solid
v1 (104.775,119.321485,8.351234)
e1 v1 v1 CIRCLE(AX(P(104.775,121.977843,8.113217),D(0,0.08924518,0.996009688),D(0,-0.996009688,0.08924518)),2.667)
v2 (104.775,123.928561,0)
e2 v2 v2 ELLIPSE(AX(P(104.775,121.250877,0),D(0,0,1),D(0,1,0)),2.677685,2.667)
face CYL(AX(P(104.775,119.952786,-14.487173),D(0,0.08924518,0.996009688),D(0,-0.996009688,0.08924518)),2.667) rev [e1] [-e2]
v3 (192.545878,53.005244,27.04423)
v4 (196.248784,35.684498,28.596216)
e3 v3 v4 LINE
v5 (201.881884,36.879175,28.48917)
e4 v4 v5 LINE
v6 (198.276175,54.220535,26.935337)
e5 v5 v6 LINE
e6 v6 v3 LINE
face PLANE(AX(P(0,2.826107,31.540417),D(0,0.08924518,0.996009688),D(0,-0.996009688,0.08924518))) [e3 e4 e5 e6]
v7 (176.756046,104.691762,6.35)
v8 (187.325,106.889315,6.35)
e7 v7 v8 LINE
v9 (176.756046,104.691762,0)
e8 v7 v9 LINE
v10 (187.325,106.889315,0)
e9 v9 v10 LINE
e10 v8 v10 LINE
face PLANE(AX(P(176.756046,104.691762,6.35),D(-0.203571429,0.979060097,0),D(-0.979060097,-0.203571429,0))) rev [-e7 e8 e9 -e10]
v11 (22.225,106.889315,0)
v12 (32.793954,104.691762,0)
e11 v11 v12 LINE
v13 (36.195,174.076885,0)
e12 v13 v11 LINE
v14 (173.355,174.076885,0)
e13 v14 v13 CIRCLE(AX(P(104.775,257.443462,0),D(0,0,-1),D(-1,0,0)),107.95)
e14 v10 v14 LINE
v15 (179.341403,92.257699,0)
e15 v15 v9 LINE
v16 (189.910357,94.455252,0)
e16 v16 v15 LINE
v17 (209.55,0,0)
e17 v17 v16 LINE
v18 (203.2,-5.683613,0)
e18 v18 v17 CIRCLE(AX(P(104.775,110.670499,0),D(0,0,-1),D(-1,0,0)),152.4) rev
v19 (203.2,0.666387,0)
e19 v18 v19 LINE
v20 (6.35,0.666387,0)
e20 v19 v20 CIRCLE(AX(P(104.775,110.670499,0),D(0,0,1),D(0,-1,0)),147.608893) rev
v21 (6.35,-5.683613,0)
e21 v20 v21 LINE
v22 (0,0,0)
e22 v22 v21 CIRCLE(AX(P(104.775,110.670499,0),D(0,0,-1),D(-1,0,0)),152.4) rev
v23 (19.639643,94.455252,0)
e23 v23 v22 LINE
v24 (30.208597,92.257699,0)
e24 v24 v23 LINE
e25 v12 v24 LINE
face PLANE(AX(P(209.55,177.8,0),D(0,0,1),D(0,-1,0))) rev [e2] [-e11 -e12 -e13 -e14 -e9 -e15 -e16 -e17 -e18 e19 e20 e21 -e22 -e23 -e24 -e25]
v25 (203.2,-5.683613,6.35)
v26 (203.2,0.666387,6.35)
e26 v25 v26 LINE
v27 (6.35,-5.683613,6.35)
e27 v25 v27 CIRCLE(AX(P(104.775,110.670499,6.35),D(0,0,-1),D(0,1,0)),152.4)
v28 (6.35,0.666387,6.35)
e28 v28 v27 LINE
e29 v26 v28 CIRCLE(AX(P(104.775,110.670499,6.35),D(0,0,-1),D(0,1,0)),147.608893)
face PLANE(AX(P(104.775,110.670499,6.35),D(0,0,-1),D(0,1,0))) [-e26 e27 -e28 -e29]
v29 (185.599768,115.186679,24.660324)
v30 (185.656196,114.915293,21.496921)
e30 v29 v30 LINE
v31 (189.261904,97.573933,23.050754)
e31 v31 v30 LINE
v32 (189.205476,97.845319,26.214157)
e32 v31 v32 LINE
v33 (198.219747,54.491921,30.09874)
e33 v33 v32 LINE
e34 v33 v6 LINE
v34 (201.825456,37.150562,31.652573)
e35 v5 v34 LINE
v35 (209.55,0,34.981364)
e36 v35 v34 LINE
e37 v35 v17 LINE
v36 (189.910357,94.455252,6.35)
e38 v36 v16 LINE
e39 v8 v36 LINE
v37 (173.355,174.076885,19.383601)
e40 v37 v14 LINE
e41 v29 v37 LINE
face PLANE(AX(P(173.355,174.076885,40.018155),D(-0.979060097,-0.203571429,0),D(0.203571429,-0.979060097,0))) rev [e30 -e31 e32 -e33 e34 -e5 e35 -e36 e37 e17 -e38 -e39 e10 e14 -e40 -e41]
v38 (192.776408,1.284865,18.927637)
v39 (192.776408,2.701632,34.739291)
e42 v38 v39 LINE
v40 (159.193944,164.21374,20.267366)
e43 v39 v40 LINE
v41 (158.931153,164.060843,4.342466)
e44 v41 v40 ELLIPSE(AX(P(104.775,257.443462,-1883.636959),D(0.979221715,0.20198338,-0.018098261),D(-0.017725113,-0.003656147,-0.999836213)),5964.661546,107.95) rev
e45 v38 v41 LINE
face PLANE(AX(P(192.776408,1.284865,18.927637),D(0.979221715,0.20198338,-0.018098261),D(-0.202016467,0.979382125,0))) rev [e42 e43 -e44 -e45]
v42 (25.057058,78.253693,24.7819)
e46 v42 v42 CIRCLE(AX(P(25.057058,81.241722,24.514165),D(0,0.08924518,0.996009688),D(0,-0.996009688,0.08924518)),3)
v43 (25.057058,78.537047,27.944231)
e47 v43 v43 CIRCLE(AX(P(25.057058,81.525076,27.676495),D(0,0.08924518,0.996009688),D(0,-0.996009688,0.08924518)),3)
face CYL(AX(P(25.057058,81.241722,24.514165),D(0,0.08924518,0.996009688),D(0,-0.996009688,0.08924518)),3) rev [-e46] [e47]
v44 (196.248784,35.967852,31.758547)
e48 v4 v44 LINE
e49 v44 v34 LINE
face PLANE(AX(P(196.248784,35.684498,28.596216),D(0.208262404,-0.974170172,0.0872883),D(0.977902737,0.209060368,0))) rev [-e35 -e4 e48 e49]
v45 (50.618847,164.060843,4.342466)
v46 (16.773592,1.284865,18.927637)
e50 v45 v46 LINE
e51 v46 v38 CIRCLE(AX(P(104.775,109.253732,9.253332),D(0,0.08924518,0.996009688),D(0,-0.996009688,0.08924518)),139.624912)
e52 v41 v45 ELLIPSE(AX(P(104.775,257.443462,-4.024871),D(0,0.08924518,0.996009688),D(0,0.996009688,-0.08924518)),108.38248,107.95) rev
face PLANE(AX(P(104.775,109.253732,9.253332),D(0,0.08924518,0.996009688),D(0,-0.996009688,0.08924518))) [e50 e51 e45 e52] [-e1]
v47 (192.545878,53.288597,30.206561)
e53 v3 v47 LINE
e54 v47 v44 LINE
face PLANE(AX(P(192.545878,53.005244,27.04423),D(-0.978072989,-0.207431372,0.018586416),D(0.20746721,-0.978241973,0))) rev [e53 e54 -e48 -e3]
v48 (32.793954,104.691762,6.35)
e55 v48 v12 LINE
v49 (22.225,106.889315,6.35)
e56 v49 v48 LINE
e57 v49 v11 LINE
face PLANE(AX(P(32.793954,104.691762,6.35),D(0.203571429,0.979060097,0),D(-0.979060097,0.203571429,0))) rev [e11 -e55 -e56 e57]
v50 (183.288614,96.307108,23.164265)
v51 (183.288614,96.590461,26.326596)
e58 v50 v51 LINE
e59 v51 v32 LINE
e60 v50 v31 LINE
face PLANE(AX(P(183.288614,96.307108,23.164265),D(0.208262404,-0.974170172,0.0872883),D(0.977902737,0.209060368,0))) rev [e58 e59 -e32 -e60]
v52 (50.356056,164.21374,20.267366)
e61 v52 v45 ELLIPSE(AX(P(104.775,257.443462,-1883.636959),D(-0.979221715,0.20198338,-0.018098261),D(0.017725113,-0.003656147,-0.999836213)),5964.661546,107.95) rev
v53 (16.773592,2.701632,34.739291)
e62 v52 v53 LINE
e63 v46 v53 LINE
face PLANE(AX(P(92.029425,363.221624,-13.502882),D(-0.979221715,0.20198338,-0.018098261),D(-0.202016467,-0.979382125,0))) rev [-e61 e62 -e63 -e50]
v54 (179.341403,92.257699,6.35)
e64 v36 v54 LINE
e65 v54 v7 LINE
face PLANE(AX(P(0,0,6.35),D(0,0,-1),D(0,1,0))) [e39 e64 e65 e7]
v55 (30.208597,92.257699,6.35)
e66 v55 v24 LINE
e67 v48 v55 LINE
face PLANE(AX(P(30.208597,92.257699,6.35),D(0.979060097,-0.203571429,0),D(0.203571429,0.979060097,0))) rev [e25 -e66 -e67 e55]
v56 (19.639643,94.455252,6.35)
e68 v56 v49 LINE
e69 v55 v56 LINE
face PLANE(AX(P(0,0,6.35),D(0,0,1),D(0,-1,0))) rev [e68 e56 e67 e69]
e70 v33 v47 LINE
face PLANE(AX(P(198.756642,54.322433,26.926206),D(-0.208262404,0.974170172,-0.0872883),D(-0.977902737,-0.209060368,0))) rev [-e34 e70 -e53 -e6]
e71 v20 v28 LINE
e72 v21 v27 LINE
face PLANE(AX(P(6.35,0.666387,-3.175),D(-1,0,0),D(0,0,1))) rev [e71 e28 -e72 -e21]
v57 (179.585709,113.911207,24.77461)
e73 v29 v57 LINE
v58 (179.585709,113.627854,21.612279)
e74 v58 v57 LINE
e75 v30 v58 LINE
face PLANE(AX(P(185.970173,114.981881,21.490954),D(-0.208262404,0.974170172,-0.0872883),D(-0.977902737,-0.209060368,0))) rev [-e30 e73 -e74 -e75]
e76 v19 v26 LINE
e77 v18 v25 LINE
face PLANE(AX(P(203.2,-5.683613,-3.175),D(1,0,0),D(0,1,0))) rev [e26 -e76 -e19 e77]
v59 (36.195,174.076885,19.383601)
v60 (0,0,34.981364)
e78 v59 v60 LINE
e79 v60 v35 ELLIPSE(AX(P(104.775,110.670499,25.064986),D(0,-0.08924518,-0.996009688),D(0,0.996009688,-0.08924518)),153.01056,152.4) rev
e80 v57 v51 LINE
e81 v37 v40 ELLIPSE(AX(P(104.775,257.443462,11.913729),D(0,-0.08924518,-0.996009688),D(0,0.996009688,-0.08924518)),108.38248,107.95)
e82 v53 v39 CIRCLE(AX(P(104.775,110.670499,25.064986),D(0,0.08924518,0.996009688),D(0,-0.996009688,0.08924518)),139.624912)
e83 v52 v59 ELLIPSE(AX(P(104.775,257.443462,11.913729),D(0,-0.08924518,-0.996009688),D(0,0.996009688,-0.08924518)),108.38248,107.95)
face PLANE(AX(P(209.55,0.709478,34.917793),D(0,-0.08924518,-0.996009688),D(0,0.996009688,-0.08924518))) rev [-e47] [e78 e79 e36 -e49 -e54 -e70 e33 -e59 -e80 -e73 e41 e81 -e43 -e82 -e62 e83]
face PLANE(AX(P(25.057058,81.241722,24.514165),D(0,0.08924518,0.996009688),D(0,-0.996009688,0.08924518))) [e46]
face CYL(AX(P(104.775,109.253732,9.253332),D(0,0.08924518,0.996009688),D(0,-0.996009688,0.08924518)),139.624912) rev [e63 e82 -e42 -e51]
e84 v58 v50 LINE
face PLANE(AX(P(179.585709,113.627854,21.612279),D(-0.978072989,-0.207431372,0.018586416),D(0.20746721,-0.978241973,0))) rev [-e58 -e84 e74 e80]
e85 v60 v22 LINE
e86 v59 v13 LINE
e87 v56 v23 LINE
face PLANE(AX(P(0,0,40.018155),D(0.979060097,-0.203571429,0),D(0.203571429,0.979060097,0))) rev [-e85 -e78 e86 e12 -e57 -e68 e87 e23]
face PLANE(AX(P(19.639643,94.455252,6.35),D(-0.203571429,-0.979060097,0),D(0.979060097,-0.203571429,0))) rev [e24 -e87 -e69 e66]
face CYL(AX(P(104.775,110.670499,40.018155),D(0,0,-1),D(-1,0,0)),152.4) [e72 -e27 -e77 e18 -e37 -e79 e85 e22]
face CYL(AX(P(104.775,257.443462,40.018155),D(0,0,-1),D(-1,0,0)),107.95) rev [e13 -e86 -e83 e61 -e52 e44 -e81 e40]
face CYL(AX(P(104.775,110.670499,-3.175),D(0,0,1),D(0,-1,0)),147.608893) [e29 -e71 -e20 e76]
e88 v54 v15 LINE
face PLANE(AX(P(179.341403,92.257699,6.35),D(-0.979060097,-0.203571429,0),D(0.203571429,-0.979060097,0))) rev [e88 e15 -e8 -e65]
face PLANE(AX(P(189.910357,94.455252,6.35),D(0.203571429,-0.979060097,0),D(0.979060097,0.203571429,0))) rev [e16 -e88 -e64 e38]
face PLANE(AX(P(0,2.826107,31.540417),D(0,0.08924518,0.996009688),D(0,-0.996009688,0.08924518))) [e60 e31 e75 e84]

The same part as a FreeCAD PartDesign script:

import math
import FreeCAD as App
import Part
import Sketcher

V = App.Vector
Q = App.Units.Quantity


def add_polygon(sketch, points):
    """Adds a closed chain of lines whose ends are joined by coincident constraints."""
    first, n = sketch.GeometryCount, len(points)
    for a, b in zip(points, points[1:] + points[:1]):
        sketch.addGeometry(Part.LineSegment(App.Vector(*a, 0), App.Vector(*b, 0)), False)
    for i in range(n):
        sketch.addConstraint(Sketcher.Constraint("Coincident", first + i, 2, first + (i + 1) % n, 1))

doc = App.newDocument("Part")
body = doc.addObject("PartDesign::Body", "Body")

sketch1 = doc.addObject("Sketcher::SketchObject", "Sketch")
body.addObject(sketch1)
sketch1.AttachmentSupport = (doc.YZ_Plane, [""])
sketch1.MapMode = "FlatFace"
add_polygon(sketch1, [(177.8, 19.05), (0.709478, 34.917793), (-56.212476, 40.018155), (-53.790493, 0), (177.8, 0)])
sketch1.addConstraint([
    Sketcher.Constraint("Horizontal", 3),
    Sketcher.Constraint("Vertical", 4),
    Sketcher.Constraint("PointOnObject", 2, 2, -1),
    Sketcher.Constraint("Parallel", 0, 1),
    Sketcher.Constraint("Distance", 0, Q("7 in")),
    Sketcher.Constraint("DistanceX", -1, 1, 3, 2, Q("7 in")),
    Sketcher.Constraint("DistanceY", 4, 1, 4, 2, Q("0.75 in")),
    Sketcher.Constraint("Distance", 1, Q("2.25 in")),
    Sketcher.Constraint("Distance", 2, Q("40.09138 mm")),
    Sketcher.Constraint("DistanceX", 3, 1, 3, 2, Q("231.590493 mm")),
])
pad1 = doc.addObject("PartDesign::Pad", "Pad")
body.addObject(pad1)
pad1.Profile = sketch1
pad1.Length = Q("8.25 in")

sketch2 = doc.addObject("Sketcher::SketchObject", "Sketch001")
body.addObject(sketch2)
sketch2.AttachmentSupport = (doc.XY_Plane, [""])
sketch2.MapMode = "FlatFace"
add_polygon(sketch2, [(-12.843343, 191.672345), (-12.843343, -74.155093), (227.667197, -74.155093), (227.667197, 191.672345)])
sketch2.addGeometry(Part.ArcOfCircle(Part.Circle(V(104.775, 110.670499, 0), V(0, 0, 1), 152.4), math.radians(-133.432537), math.radians(-46.567463)), False)
sketch2.addGeometry(Part.LineSegment(V(0, 0, 0), V(36.195, 174.076885, 0)), False)
sketch2.addGeometry(Part.ArcOfCircle(Part.Circle(V(104.775, 257.443462, 0), V(0, 0, 1), 107.95), math.radians(-129.441802), math.radians(-50.558198)), False)
sketch2.addGeometry(Part.LineSegment(V(173.355, 174.076885, 0), V(209.55, 0, 0)), False)
sketch2.addConstraint([
    Sketcher.Constraint("Coincident", 4, 1, 5, 1),
    Sketcher.Constraint("Coincident", 5, 2, 6, 1),
    Sketcher.Constraint("Coincident", 6, 2, 7, 1),
    Sketcher.Constraint("Coincident", 7, 2, 4, 2),
    Sketcher.Constraint("Vertical", 0),
    Sketcher.Constraint("Horizontal", 1),
    Sketcher.Constraint("Vertical", 2),
    Sketcher.Constraint("Horizontal", 3),
    Sketcher.Constraint("Coincident", 4, 1, -1, 1),
    Sketcher.Constraint("PointOnObject", 7, 2, -1),
    Sketcher.Constraint("Horizontal", 5, 2, 6, 2),
    Sketcher.Constraint("Vertical", 4, 3, 6, 3),
    Sketcher.Constraint("Radius", 4, Q("6 in")),
    Sketcher.Constraint("Radius", 6, Q("4.25 in")),
    Sketcher.Constraint("Distance", 5, Q("7 in")),
    Sketcher.Constraint("DistanceX", 5, 2, 4, 3, Q("2.7 in")),
    Sketcher.Constraint("DistanceX", -1, 1, 7, 2, Q("8.25 in")),
    Sketcher.Constraint("DistanceX", 1, 1, 1, 2, Q("240.510539 mm")),
    Sketcher.Constraint("DistanceY", 0, 2, 0, 1, Q("265.827438 mm")),
    Sketcher.Constraint("DistanceY", 5, 2, 3, 2, Q("17.59546 mm")),
    Sketcher.Constraint("DistanceX", 0, 2, -1, 1, Q("12.843343 mm")),
])
pocket1 = doc.addObject("PartDesign::Pocket", "Pocket")
body.addObject(pocket1)
pocket1.Profile = sketch2
pocket1.Type = "ThroughAll"
pocket1.Midplane = True

sketch3 = doc.addObject("Sketcher::SketchObject", "Sketch002")
body.addObject(sketch3)
sketch3.Placement = App.Placement(V(0, 3.474785, 34.670014), App.Rotation(V(1, 0, 0), V(0, 0.996009688, -0.08924518), V(0, 0.08924518, 0.996009688), "ZXY"))
sketch3.addGeometry([
    Part.LineSegment(V(92.029425, 362.610535, 0), V(16.773592, -0.77625, 0)),
    Part.ArcOfCircle(Part.Circle(V(104.775, 107.625172, 0), V(0, 0, 1), 139.624912), math.radians(-129.070053), math.radians(-50.929947)),
    Part.LineSegment(V(192.776408, -0.77625, 0), V(117.520575, 362.610535, 0)),
    Part.LineSegment(V(117.520575, 362.610535, 0), V(92.029425, 362.610535, 0)),
], False)
sketch3.addConstraint([
    Sketcher.Constraint("Coincident", 0, 2, 1, 1),
    Sketcher.Constraint("Coincident", 1, 2, 2, 1),
    Sketcher.Constraint("Coincident", 2, 2, 3, 1),
    Sketcher.Constraint("Coincident", 3, 2, 0, 1),
    Sketcher.Constraint("Horizontal", 3),
    Sketcher.Constraint("Horizontal", 0, 2, 1, 2),
    Sketcher.Constraint("Equal", 0, 2),
    Sketcher.Constraint("DistanceX", -1, 1, 1, 3, Q("4.125 in")),
    Sketcher.Constraint("Radius", 1, Q("139.624912 mm")),
    Sketcher.Constraint("DistanceX", 3, 2, 3, 1, Q("25.491149 mm")),
    Sketcher.Constraint("DistanceY", 0, 2, -1, 1, Q("0.77625 mm")),
    Sketcher.Constraint("Distance", 0, Q("371.097557 mm")),
    Sketcher.Constraint("DistanceY", -1, 1, 1, 3, Q("107.625172 mm")),
])
pocket2 = doc.addObject("PartDesign::Pocket", "Pocket001")
body.addObject(pocket2)
pocket2.Profile = sketch3
pocket2.Length = Q("0.625 in")

sketch4 = doc.addObject("Sketcher::SketchObject", "Sketch003")
body.addObject(sketch4)
sketch4.Placement = App.Placement(V(0, 3.109461, 34.702748), App.Rotation(V(1, 0, 0), V(0, 0.996009688, -0.08924518), V(0, 0.08924518, 0.996009688), "ZXY"))
add_polygon(sketch4, [(185.970173, 112.605104), (179.585709, 111.245651), (183.288614, 93.855513), (189.673078, 95.214966)])
add_polygon(sketch4, [(198.756642, 51.702635), (192.545878, 50.380169), (196.248784, 32.990031), (202.459547, 34.312498)])
sketch4.addConstraint([
    Sketcher.Constraint("Perpendicular", 0, 1),
    Sketcher.Constraint("Perpendicular", 1, 2),
    Sketcher.Constraint("Perpendicular", 2, 3),
    Sketcher.Constraint("Perpendicular", 3, 4),
    Sketcher.Constraint("Perpendicular", 4, 5),
    Sketcher.Constraint("Perpendicular", 5, 6),
    Sketcher.Constraint("Perpendicular", 6, 7),
    Sketcher.Constraint("Equal", 3, 5),
    Sketcher.Constraint("Distance", 1, Q("0.7 in")),
    Sketcher.Constraint("Distance", 4, Q("0.25 in")),
    Sketcher.Constraint("DistanceX", 2, 2, 4, 2, Q("2.8728 mm")),
    Sketcher.Constraint("DistanceX", -1, 1, 0, 2, Q("179.585709 mm")),
    Sketcher.Constraint("DistanceY", -1, 1, 0, 2, Q("111.245651 mm")),
    Sketcher.Constraint("DistanceX", -1, 1, 2, 2, Q("189.673078 mm")),
    Sketcher.Constraint("DistanceY", -1, 1, 4, 2, Q("50.380169 mm")),
    Sketcher.Constraint("DistanceY", -1, 1, 5, 2, Q("32.990031 mm")),
])
pocket3 = doc.addObject("PartDesign::Pocket", "Pocket002")
body.addObject(pocket3)
pocket3.Profile = sketch4
pocket3.Length = Q("0.125 in")

sketch5 = doc.addObject("Sketcher::SketchObject", "Sketch004")
body.addObject(sketch5)
sketch5.Placement = App.Placement(V(0, 3.109461, 34.702748), App.Rotation(V(1, 0, 0), V(0, 0.996009688, -0.08924518), V(0, 0.08924518, 0.996009688), "ZXY"))
sketch5.addGeometry(Part.Circle(V(25.057058, 78.729772, 0), V(0, 0, 1), 3), False)
sketch5.addConstraint([
    Sketcher.Constraint("Diameter", 0, Q("6 mm")),
    Sketcher.Constraint("DistanceX", -1, 1, 0, 3, Q("25.057058 mm")),
    Sketcher.Constraint("DistanceY", -1, 1, 0, 3, Q("78.729772 mm")),
])
pocket4 = doc.addObject("PartDesign::Pocket", "Pocket003")
body.addObject(pocket4)
pocket4.Profile = sketch5
pocket4.Length = Q("0.125 in")

sketch6 = doc.addObject("Sketcher::SketchObject", "Sketch005")
body.addObject(sketch6)
sketch6.AttachmentSupport = (doc.XY_Plane, [""])
sketch6.MapMode = "FlatFace"
sketch6.addGeometry([
    Part.LineSegment(V(203.2, 0.666387, 0), V(203.2, -5.683613, 0)),
    Part.ArcOfCircle(Part.Circle(V(104.775, 48.291387, 0), V(0, 0, 1), 112.253202), math.radians(-151.260205), math.radians(-28.739795)),
    Part.LineSegment(V(6.35, -5.683613, 0), V(6.35, 0.666387, 0)),
    Part.ArcOfCircle(Part.Circle(V(104.775, 110.670499, 0), V(0, 0, 1), 147.608893), math.radians(-131.820247), math.radians(-48.179753)),
], False)
sketch6.addConstraint([
    Sketcher.Constraint("Coincident", 0, 2, 1, 2),
    Sketcher.Constraint("Coincident", 1, 1, 2, 1),
    Sketcher.Constraint("Coincident", 2, 2, 3, 1),
    Sketcher.Constraint("Coincident", 3, 2, 0, 1),
    Sketcher.Constraint("Vertical", 0),
    Sketcher.Constraint("Vertical", 2),
    Sketcher.Constraint("Horizontal", 0, 2, 1, 1),
    Sketcher.Constraint("Horizontal", 2, 2, 3, 2),
    Sketcher.Constraint("DistanceX", -1, 1, 0, 2, Q("8 in")),
    Sketcher.Constraint("DistanceY", 0, 2, 0, 1, Q("0.25 in")),
    Sketcher.Constraint("DistanceX", -1, 1, 1, 1, Q("0.25 in")),
    Sketcher.Constraint("Radius", 1, Q("112.253202 mm")),
    Sketcher.Constraint("Radius", 3, Q("147.608893 mm")),
    Sketcher.Constraint("DistanceY", -1, 1, 3, 3, Q("110.670499 mm")),
])
pocket5 = doc.addObject("PartDesign::Pocket", "Pocket004")
body.addObject(pocket5)
pocket5.Profile = sketch6
pocket5.Type = "TwoLengths"
pocket5.Length = Q("0.125 in")
pocket5.Length2 = Q("0.25 in")

sketch7 = doc.addObject("Sketcher::SketchObject", "Sketch006")
body.addObject(sketch7)
sketch7.Placement = App.Placement(V(0, 1.692693, 18.891094), App.Rotation(V(1, 0, 0), V(0, 0.996009688, -0.08924518), V(0, 0.08924518, 0.996009688), "ZXY"))
sketch7.addGeometry(Part.Circle(V(104.775, 120.767048, 0), V(0, 0, 1), 2.667), False)
sketch7.addConstraint([
    Sketcher.Constraint("Diameter", 0, Q("0.21 in")),
    Sketcher.Constraint("DistanceX", -1, 1, 0, 3, Q("4.125 in")),
    Sketcher.Constraint("DistanceY", -1, 1, 0, 3, Q("120.767048 mm")),
])
pocket6 = doc.addObject("PartDesign::Pocket", "Pocket005")
body.addObject(pocket6)
pocket6.Profile = sketch7
pocket6.Type = "ThroughAll"

sketch8 = doc.addObject("Sketcher::SketchObject", "Sketch007")
body.addObject(sketch8)
sketch8.AttachmentSupport = (doc.XY_Plane, [""])
sketch8.MapMode = "FlatFace"
add_polygon(sketch8, [(187.325, 106.889315), (189.910357, 94.455252), (179.341403, 92.257699), (176.756046, 104.691762)])
add_polygon(sketch8, [(22.225, 106.889315), (32.793954, 104.691762), (30.208597, 92.257699), (19.639643, 94.455252)])
sketch8.addConstraint([
    Sketcher.Constraint("Perpendicular", 0, 1),
    Sketcher.Constraint("Perpendicular", 1, 2),
    Sketcher.Constraint("Perpendicular", 2, 3),
    Sketcher.Constraint("Perpendicular", 4, 5),
    Sketcher.Constraint("Perpendicular", 5, 6),
    Sketcher.Constraint("Perpendicular", 6, 7),
    Sketcher.Constraint("Horizontal", 2, 2, 4, 2),
    Sketcher.Constraint("Horizontal", 1, 2, 5, 2),
    Sketcher.Constraint("Horizontal", 0, 2, 6, 2),
    Sketcher.Constraint("Equal", 3, 4),
    Sketcher.Constraint("Distance", 0, Q("0.5 in")),
    Sketcher.Constraint("Distance", 1, Q("0.425 in")),
    Sketcher.Constraint("DistanceX", -1, 1, 3, 2, Q("7.375 in")),
    Sketcher.Constraint("DistanceX", -1, 1, 7, 2, Q("0.875 in")),
    Sketcher.Constraint("DistanceY", -1, 1, 1, 2, Q("92.257699 mm")),
    Sketcher.Constraint("DistanceY", -1, 1, 2, 2, Q("104.691762 mm")),
])
pocket7 = doc.addObject("PartDesign::Pocket", "Pocket006")
body.addObject(pocket7)
pocket7.Profile = sketch8
pocket7.Length = Q("0.25 in")
pocket7.Reversed = True

doc.recompute()
